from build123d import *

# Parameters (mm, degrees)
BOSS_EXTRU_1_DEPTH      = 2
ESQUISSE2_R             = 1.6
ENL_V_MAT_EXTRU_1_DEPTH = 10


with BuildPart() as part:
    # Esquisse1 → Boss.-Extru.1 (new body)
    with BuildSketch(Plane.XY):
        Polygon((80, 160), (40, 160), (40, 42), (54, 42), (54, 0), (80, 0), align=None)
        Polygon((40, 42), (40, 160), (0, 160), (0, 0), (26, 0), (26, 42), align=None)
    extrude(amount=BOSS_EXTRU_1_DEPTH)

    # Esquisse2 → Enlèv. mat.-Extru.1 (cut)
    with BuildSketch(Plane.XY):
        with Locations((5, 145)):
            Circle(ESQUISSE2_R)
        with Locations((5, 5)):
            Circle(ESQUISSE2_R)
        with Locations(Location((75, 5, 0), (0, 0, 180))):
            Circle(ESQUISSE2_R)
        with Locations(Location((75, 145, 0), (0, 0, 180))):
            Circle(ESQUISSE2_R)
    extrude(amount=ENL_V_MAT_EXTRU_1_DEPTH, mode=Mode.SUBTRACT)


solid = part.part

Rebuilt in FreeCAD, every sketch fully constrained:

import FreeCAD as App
import Part
import Sketcher

V = App.Vector
Q = App.Units.Quantity


def add_polygon(sketch, points):
    """Adds a closed chain of lines whose ends are joined by coincident constraints."""
    first, n = sketch.GeometryCount, len(points)
    for a, b in zip(points, points[1:] + points[:1]):
        sketch.addGeometry(Part.LineSegment(App.Vector(*a, 0), App.Vector(*b, 0)), False)
    for i in range(n):
        sketch.addConstraint(Sketcher.Constraint("Coincident", first + i, 2, first + (i + 1) % n, 1))

doc = App.newDocument("Part")
body = doc.addObject("PartDesign::Body", "Body")

sketch1 = body.newObject("Sketcher::SketchObject", "Sketch")
sketch1.AttachmentSupport = (doc.getObject("XY_Plane"), [""])
sketch1.MapMode = "FlatFace"
add_polygon(sketch1, [(80, 160), (0, 160), (0, 0), (26, 0), (26, 42), (54, 42), (54, 0), (80, 0)])
sketch1.addConstraint([
    Sketcher.Constraint("Horizontal", 0),
    Sketcher.Constraint("Vertical", 1),
    Sketcher.Constraint("Horizontal", 2),
    Sketcher.Constraint("Vertical", 3),
    Sketcher.Constraint("Horizontal", 4),
    Sketcher.Constraint("Vertical", 5),
    Sketcher.Constraint("Horizontal", 6),
    Sketcher.Constraint("Vertical", 7),
    Sketcher.Constraint("Coincident", 1, 2, -1, 1),
    Sketcher.Constraint("PointOnObject", 5, 2, -1),
    Sketcher.Constraint("Equal", 2, 6),
    Sketcher.Constraint("DistanceX", 0, 2, 0, 1, Q("80 mm")),
    Sketcher.Constraint("DistanceX", 2, 1, 2, 2, Q("26 mm")),
    Sketcher.Constraint("DistanceY", 1, 2, 1, 1, Q("160 mm")),
    Sketcher.Constraint("DistanceY", 3, 1, 3, 2, Q("42 mm")),
])
pad1 = body.newObject("PartDesign::Pad", "Pad")
pad1.Profile = sketch1
pad1.Length = 2

sketch2 = body.newObject("Sketcher::SketchObject", "Sketch001")
sketch2.AttachmentSupport = (doc.getObject("XY_Plane"), [""])
sketch2.MapMode = "FlatFace"
sketch2.addGeometry([
    Part.Circle(V(5, 145, 0), V(0, 0, 1), 1.6),
    Part.Circle(V(5, 5, 0), V(0, 0, 1), 1.6),
    Part.Circle(V(75, 5, 0), V(0, 0, 1), 1.6),
    Part.Circle(V(75, 145, 0), V(0, 0, 1), 1.6),
], False)
sketch2.addConstraint([
    Sketcher.Constraint("Equal", 0, 1),
    Sketcher.Constraint("Equal", 1, 2),
    Sketcher.Constraint("Equal", 2, 3),
    Sketcher.Constraint("Horizontal", 1, 3, 2, 3),
    Sketcher.Constraint("Horizontal", 0, 3, 3, 3),
    Sketcher.Constraint("Vertical", 0, 3, 1, 3),
    Sketcher.Constraint("Vertical", 2, 3, 3, 3),
    Sketcher.Constraint("Diameter", 0, Q("3.2 mm")),
    Sketcher.Constraint("DistanceX", -1, 1, 0, 3, Q("5 mm")),
    Sketcher.Constraint("DistanceY", -1, 1, 0, 3, Q("145 mm")),
    Sketcher.Constraint("DistanceY", -1, 1, 1, 3, Q("5 mm")),
    Sketcher.Constraint("DistanceX", -1, 1, 2, 3, Q("75 mm")),
])
pocket1 = body.newObject("PartDesign::Pocket", "Pocket")
pocket1.Profile = sketch2
pocket1.Length = 10
pocket1.Reversed = True

doc.recompute()
